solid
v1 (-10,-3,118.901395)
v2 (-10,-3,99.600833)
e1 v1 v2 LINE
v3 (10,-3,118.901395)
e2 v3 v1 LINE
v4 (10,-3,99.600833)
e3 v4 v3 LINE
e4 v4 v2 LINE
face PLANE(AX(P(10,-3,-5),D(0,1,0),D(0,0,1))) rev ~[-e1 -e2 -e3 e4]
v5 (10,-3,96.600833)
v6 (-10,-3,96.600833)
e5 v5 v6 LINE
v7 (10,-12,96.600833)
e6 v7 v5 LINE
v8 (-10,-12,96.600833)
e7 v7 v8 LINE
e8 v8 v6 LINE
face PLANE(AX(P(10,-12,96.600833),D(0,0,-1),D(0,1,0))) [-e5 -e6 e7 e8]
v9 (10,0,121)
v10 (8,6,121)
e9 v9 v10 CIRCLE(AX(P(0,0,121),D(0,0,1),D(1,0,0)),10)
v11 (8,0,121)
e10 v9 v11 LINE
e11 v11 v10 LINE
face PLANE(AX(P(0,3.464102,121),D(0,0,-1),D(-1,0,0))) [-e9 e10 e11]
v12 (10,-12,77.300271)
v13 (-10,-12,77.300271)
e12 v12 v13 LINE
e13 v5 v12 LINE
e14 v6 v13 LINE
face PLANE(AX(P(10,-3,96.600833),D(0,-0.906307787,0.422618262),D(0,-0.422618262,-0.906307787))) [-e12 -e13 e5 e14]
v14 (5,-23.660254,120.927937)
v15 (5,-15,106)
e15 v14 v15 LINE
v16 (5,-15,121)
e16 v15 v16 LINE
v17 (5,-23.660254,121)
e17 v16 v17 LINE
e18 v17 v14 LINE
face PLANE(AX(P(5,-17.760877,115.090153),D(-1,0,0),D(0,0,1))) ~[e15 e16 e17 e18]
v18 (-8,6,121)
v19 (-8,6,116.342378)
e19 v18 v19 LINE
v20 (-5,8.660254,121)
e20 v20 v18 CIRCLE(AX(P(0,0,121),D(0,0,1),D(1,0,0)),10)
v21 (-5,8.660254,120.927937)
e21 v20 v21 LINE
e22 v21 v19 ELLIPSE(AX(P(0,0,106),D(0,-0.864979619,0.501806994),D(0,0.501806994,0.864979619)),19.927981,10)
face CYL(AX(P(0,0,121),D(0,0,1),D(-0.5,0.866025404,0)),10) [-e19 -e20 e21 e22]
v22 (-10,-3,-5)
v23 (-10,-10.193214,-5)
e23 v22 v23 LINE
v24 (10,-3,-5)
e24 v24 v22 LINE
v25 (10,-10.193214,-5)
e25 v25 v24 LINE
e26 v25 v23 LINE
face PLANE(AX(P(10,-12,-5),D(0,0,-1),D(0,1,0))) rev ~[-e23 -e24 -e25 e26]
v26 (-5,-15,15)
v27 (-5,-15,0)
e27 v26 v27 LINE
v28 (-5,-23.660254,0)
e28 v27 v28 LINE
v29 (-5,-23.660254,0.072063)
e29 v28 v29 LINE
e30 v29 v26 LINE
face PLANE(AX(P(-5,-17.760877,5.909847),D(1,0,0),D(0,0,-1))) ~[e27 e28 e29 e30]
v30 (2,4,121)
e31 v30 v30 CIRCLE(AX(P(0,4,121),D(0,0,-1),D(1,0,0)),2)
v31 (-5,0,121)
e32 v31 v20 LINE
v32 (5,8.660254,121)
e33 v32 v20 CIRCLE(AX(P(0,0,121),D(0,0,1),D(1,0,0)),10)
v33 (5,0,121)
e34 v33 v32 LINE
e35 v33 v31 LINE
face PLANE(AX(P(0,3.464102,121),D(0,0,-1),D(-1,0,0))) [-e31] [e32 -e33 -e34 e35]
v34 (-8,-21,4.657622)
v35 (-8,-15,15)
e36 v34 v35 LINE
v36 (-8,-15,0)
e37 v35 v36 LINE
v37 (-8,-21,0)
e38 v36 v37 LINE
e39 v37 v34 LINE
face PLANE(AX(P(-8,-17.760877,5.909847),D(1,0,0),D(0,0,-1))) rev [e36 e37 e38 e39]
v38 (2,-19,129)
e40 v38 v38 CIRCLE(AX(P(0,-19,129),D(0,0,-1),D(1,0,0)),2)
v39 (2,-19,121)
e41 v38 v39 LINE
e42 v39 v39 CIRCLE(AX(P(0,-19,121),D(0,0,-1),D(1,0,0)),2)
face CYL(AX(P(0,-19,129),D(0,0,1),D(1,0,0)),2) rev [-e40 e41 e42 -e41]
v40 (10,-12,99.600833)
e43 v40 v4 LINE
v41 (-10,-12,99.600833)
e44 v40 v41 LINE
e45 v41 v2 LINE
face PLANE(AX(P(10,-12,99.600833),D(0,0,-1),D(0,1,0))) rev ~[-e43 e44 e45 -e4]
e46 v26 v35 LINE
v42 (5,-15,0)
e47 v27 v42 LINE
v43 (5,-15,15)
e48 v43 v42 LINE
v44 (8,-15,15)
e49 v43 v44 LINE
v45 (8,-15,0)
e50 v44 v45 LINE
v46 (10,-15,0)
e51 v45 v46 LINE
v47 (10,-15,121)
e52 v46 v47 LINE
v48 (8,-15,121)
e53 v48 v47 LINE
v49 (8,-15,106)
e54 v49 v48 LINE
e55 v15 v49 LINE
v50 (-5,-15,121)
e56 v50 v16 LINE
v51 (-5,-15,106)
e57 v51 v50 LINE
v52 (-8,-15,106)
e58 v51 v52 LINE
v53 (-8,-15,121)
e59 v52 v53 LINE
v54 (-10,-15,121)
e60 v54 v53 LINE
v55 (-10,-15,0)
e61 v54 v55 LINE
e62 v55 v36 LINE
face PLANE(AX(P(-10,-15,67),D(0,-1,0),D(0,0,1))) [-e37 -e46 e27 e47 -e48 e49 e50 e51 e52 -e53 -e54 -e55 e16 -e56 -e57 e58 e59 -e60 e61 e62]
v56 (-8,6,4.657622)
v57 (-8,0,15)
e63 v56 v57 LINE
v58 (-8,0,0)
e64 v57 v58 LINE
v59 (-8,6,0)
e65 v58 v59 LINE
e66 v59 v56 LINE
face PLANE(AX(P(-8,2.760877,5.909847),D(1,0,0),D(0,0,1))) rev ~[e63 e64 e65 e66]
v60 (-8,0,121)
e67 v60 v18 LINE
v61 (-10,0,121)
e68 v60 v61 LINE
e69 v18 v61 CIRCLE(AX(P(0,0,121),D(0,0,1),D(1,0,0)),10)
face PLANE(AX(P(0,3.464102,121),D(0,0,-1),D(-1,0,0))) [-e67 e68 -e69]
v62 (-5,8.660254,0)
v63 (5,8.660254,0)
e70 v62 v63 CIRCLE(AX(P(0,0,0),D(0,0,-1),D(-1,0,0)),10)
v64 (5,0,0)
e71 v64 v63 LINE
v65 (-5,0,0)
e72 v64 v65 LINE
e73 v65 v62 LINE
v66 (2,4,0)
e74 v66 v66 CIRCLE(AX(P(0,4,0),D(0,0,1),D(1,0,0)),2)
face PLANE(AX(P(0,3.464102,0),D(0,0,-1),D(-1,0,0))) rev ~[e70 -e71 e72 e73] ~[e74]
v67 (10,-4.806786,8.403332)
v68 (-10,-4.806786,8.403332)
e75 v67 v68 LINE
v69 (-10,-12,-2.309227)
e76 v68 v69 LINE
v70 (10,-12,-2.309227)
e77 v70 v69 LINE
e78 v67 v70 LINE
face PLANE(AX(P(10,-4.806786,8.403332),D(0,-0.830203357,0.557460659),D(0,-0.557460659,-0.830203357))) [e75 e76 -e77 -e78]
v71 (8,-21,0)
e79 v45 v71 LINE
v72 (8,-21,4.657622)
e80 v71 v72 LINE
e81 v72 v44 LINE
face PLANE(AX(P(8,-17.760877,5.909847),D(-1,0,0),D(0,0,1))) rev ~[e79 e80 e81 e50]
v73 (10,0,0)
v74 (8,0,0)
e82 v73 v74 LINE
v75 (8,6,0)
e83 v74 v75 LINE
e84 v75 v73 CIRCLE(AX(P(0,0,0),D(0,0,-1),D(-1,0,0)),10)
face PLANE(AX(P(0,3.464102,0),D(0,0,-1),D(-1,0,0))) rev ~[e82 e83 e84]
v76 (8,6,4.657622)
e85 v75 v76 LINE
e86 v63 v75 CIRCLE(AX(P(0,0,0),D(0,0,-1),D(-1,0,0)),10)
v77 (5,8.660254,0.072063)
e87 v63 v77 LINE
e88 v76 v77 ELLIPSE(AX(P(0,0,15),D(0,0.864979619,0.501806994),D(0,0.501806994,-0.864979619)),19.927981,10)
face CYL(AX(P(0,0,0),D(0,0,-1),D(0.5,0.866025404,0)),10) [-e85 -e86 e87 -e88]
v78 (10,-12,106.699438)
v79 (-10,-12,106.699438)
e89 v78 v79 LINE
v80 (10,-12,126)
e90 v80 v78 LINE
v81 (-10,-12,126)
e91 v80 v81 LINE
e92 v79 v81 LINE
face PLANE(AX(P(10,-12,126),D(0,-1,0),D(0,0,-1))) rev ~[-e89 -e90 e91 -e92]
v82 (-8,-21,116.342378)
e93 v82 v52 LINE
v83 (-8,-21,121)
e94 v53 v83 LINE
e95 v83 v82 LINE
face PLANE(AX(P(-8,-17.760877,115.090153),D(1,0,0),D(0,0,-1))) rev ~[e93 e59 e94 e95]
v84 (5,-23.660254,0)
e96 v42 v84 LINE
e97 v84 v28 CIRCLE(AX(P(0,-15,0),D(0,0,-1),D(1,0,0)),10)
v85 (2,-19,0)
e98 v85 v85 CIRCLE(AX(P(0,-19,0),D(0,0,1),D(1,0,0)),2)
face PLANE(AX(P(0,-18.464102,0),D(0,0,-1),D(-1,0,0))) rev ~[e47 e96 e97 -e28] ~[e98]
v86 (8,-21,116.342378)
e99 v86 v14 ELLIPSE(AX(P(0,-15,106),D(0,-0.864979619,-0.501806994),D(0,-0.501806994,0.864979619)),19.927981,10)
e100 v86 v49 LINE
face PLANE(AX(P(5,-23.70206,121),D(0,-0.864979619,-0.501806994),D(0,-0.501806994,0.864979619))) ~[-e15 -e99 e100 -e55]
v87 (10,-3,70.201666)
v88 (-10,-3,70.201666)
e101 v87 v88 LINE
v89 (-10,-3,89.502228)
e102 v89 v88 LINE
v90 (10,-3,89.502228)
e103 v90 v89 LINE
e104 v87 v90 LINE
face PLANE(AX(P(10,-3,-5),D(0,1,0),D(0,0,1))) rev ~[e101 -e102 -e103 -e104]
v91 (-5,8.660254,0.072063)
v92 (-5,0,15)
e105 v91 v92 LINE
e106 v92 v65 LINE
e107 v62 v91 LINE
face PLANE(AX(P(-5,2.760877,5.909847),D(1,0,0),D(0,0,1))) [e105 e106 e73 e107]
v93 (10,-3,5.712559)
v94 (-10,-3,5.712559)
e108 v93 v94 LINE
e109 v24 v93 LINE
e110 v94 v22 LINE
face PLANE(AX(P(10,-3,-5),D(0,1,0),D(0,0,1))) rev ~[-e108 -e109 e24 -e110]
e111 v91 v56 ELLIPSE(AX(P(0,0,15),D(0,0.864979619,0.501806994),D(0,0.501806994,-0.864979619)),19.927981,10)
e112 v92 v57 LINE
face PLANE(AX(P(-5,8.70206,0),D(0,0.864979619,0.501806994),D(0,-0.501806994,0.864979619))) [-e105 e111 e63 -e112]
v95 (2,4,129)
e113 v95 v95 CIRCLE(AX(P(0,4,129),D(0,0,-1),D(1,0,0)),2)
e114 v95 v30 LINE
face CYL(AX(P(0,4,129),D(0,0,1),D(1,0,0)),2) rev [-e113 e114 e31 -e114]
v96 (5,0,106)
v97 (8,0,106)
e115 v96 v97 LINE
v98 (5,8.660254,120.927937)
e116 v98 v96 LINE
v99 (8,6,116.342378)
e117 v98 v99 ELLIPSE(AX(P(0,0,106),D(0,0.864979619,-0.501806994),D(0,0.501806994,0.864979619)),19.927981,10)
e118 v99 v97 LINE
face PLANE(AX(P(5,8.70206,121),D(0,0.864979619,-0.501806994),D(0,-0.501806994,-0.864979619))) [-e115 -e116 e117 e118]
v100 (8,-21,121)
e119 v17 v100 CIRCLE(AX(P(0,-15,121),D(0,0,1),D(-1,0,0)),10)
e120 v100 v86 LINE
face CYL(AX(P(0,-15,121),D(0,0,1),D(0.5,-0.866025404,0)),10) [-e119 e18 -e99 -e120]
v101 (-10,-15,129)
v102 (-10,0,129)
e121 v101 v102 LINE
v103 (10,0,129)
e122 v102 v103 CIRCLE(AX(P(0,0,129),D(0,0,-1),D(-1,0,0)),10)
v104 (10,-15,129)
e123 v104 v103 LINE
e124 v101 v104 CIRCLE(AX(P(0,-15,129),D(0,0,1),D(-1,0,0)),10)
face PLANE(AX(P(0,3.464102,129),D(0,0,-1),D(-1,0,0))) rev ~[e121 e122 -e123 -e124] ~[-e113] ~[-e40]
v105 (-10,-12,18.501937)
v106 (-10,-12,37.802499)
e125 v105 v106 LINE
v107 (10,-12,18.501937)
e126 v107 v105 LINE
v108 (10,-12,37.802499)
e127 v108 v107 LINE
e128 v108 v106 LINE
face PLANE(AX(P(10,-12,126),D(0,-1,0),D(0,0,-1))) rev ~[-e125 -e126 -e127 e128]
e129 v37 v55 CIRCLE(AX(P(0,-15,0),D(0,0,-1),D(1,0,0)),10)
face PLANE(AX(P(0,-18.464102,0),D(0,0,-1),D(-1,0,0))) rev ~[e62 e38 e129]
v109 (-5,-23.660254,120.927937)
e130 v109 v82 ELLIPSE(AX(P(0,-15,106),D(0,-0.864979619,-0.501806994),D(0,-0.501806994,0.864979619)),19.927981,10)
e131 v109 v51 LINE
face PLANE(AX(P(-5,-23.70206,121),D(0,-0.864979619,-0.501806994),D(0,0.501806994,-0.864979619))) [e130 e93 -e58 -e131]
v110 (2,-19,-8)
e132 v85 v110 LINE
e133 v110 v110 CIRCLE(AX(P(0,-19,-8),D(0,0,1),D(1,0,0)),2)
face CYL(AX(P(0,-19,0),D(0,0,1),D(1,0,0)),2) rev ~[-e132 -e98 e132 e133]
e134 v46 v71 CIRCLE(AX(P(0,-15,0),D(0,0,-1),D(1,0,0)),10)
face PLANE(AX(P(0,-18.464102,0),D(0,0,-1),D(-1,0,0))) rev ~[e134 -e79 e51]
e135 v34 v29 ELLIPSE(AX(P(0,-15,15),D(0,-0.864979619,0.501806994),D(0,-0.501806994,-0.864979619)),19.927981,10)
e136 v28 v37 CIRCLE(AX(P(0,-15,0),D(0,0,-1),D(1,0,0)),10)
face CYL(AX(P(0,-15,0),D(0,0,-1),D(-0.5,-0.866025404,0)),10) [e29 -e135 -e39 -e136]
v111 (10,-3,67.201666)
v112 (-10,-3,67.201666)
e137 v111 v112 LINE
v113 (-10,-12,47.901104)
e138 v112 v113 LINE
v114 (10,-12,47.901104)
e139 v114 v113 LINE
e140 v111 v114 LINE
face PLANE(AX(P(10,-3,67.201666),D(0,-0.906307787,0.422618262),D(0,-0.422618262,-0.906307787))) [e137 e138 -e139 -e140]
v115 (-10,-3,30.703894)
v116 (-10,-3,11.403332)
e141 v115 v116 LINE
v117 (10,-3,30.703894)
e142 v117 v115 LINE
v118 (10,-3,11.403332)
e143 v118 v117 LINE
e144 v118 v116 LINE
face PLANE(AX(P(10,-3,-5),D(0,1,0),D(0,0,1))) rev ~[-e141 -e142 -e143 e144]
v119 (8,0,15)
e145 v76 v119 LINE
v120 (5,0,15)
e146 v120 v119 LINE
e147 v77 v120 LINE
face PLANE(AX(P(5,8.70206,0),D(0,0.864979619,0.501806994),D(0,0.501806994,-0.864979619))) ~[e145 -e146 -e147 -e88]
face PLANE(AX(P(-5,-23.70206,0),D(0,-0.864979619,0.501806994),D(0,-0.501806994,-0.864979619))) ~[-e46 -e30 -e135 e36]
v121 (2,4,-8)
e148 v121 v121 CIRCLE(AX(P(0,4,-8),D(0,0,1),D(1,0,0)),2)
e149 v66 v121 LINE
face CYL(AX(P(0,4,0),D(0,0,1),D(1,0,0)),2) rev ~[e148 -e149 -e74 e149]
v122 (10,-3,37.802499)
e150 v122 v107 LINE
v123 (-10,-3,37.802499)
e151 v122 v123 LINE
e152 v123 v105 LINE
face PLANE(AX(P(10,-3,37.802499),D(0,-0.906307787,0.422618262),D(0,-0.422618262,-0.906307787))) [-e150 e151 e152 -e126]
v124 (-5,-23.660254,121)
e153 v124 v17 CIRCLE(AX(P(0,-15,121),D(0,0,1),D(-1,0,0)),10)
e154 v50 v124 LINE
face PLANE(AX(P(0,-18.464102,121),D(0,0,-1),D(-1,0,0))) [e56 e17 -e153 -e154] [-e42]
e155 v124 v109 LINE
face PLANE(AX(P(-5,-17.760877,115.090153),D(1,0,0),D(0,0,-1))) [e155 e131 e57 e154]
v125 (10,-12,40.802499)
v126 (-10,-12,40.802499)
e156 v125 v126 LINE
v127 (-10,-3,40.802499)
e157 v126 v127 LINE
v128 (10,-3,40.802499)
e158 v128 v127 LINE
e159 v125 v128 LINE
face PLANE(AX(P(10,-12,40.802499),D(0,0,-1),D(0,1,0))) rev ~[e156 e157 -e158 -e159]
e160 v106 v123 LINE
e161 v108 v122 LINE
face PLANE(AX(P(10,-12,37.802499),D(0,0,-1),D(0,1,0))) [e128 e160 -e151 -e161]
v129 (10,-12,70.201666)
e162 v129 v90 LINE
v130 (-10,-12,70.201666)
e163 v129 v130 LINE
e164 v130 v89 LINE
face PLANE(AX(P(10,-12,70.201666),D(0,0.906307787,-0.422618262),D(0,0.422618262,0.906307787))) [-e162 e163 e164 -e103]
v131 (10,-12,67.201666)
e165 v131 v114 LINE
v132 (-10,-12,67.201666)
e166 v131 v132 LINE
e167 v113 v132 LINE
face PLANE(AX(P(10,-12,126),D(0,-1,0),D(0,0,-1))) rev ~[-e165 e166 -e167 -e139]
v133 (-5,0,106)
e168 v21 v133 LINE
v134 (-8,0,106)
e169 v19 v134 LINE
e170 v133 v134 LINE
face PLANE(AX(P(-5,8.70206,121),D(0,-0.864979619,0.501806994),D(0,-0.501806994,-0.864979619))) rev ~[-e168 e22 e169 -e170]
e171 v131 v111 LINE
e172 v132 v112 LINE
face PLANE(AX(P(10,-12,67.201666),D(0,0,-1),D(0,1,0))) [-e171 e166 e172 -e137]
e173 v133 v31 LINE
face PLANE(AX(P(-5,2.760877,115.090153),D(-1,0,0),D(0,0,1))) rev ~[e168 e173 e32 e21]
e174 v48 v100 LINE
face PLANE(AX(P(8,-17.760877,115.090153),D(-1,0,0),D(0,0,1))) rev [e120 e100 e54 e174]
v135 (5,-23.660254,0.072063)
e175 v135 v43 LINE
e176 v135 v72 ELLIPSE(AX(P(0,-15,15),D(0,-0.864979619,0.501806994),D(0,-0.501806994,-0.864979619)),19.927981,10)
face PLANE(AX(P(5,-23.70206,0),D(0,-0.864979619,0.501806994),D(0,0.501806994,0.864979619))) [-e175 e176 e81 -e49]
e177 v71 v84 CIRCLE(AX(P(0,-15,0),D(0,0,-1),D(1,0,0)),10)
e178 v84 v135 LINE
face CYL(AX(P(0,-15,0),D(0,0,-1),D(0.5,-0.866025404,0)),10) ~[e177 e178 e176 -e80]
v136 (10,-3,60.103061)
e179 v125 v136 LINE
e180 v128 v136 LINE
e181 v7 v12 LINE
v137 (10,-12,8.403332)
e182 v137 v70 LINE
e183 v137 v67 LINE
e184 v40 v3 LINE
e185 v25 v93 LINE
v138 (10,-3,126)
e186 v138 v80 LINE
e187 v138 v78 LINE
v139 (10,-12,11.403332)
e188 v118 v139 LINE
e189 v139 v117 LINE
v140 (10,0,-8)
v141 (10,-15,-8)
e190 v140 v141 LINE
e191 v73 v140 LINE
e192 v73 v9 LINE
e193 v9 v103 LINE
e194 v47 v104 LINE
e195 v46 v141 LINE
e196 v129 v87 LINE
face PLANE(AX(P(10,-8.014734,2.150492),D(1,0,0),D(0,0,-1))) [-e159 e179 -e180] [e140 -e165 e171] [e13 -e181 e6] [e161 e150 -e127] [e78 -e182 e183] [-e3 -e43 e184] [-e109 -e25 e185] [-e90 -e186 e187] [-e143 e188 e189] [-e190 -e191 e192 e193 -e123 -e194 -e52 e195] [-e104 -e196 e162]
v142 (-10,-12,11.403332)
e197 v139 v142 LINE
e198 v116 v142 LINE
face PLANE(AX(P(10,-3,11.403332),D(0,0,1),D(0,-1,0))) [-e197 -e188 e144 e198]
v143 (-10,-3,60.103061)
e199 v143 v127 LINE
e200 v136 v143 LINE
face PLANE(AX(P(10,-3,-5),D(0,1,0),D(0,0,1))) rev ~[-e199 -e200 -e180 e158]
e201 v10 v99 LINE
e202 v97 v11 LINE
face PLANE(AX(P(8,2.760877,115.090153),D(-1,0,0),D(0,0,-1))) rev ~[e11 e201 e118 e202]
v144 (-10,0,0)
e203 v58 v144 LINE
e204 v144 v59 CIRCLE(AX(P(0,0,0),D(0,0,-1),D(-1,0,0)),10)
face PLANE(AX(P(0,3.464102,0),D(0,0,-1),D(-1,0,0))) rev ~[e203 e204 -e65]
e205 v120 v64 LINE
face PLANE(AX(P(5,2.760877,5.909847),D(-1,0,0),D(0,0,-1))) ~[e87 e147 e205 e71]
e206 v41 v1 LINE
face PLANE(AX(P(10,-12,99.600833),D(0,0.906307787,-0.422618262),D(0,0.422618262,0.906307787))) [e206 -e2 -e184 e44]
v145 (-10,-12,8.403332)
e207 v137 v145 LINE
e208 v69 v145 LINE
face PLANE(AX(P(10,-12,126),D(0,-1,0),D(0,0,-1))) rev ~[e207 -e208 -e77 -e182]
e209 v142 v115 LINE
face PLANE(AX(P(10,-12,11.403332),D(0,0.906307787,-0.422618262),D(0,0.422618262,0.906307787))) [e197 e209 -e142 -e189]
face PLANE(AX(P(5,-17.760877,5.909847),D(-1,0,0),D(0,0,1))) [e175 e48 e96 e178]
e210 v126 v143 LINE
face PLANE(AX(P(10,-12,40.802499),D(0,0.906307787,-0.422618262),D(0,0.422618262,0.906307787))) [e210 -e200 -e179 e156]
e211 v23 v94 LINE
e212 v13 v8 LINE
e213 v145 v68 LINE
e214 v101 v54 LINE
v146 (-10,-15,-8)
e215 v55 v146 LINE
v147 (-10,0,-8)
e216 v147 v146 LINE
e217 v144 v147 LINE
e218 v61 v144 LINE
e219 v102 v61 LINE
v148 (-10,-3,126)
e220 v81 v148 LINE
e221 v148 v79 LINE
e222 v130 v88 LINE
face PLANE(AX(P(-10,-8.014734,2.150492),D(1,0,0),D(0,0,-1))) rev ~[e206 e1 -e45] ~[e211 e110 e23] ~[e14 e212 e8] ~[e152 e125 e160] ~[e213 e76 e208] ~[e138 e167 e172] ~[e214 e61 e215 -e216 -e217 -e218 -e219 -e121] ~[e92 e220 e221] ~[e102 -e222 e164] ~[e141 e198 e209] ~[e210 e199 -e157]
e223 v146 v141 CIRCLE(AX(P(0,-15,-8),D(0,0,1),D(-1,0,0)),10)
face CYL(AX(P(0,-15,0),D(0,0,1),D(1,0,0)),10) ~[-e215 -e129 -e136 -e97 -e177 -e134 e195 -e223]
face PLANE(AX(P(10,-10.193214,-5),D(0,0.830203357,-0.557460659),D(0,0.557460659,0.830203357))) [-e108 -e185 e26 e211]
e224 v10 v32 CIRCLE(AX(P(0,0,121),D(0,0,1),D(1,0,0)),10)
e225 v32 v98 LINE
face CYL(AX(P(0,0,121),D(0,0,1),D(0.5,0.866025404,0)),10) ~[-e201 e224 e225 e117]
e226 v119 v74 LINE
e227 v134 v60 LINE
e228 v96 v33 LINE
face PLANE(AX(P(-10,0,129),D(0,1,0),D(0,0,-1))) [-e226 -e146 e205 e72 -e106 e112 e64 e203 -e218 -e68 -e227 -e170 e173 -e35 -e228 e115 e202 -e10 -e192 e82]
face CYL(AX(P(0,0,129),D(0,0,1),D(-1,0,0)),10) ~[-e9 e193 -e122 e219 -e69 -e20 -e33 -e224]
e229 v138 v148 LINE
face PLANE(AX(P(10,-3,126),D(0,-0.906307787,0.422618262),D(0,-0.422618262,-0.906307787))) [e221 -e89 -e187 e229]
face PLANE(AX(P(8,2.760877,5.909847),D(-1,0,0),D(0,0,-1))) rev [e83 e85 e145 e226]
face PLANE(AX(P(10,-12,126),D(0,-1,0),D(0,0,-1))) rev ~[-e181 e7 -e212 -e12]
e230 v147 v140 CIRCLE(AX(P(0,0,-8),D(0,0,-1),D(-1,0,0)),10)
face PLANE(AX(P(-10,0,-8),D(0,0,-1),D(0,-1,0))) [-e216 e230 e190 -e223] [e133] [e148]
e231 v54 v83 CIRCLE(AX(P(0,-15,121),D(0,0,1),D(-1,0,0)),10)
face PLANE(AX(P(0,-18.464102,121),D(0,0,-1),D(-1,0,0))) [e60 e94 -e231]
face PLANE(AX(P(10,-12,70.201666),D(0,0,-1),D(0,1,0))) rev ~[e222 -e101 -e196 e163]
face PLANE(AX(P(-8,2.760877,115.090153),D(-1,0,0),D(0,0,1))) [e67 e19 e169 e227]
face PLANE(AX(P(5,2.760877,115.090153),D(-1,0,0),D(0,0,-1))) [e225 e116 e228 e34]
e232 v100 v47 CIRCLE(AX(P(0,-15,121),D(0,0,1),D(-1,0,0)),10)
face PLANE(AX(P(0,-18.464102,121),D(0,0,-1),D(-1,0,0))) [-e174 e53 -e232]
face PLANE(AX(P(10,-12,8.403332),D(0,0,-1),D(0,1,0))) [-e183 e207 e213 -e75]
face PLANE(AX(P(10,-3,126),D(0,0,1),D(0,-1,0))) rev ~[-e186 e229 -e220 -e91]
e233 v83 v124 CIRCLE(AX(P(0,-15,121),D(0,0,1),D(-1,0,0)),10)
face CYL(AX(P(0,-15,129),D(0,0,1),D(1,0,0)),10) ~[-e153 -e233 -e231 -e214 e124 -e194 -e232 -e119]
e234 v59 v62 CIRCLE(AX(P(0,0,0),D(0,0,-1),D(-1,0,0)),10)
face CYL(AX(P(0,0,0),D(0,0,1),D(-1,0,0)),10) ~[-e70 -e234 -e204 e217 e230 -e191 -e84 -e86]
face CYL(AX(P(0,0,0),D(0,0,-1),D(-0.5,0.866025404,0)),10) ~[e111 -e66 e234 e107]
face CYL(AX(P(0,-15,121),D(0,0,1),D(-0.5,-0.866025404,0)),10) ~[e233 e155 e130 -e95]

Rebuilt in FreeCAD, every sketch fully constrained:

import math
import FreeCAD as App
import Part
import Sketcher
Q = App.Units.Quantity


def add_polygon(sketch, points):
    """Adds a closed chain of lines whose ends are joined by coincident constraints."""
    first, n = sketch.GeometryCount, len(points)
    for a, b in zip(points, points[1:] + points[:1]):
        sketch.addGeometry(Part.LineSegment(App.Vector(*a, 0), App.Vector(*b, 0)), False)
    for i in range(n):
        sketch.addConstraint(Sketcher.Constraint("Coincident", first + i, 2, first + (i + 1) % n, 1))

doc = App.newDocument("Part")
body = doc.addObject("PartDesign::Body", "Body")

sketch1 = body.newObject("Sketcher::SketchObject", "Sketch")
sketch1.AttachmentSupport = (doc.getObject("XY_Plane"), [""])
sketch1.MapMode = "FlatFace"
sketch1.addGeometry([
    Part.LineSegment(App.Vector(10, -15, 0), App.Vector(-10, -15, 0)),
    Part.ArcOfCircle(Part.Circle(App.Vector(0, -15, 0), App.Vector(0, 0, 1), 10), math.radians(180), math.radians(360)),
    Part.Circle(App.Vector(0, -19, 0), App.Vector(0, 0, 1), 2),
], False)
sketch1.addConstraint([
    Sketcher.Constraint("Coincident", 0, 1, 1, 2),
    Sketcher.Constraint("Coincident", 1, 1, 0, 2),
    Sketcher.Constraint("Horizontal", 0),
    Sketcher.Constraint("PointOnObject", 1, 3, -2),
    Sketcher.Constraint("PointOnObject", 2, 3, -2),
    Sketcher.Constraint("Horizontal", 1, 3, 0, 1),
    Sketcher.Constraint("Diameter", 2, 4.0),
    Sketcher.Constraint("Radius", 1, 10.0),
    Sketcher.Constraint("DistanceY", 1, 3, -1, 1, 15.0),
    Sketcher.Constraint("DistanceY", 2, 3, -1, 1, 19.0),
])
pad1 = body.newObject("PartDesign::Pad", "Pad")
pad1.Profile = sketch1
pad1.Length = 8
pad1.Reversed = True
body2 = doc.addObject("PartDesign::Body", "Body001")

sketch2 = body2.newObject("Sketcher::SketchObject", "Sketch001")
sketch2.AttachmentSupport = (doc.getObject("XY_Plane001"), [""])
sketch2.MapMode = "FlatFace"
sketch2.addGeometry([
    Part.LineSegment(App.Vector(-10, 0, 0), App.Vector(10, 0, 0)),
    Part.ArcOfCircle(Part.Circle(App.Vector(0, 0, 0), App.Vector(0, 0, 1), 10), math.radians(0), math.radians(180)),
    Part.Circle(App.Vector(0, 4, 0), App.Vector(0, 0, 1), 2),
], False)
sketch2.addConstraint([
    Sketcher.Constraint("Coincident", 0, 1, 1, 2),
    Sketcher.Constraint("Coincident", 1, 1, 0, 2),
    Sketcher.Constraint("Horizontal", 0),
    Sketcher.Constraint("Coincident", 1, 3, -1, 1),
    Sketcher.Constraint("PointOnObject", 2, 3, -2),
    Sketcher.Constraint("PointOnObject", 0, 1, -1),
    Sketcher.Constraint("Diameter", 2, 4.0),
    Sketcher.Constraint("Radius", 1, 10.0),
    Sketcher.Constraint("DistanceY", -1, 1, 2, 3, 4.0),
])
pad2 = body2.newObject("PartDesign::Pad", "Pad001")
pad2.Profile = sketch2
pad2.Length = 8
pad2.Reversed = True
body.AllowCompound = True
doc.recompute()

boolean = body.newObject("PartDesign::Boolean", "Boolean")
boolean.Type = "Fuse"
boolean.addObjects([body2])

sketch3 = body.newObject("Sketcher::SketchObject", "Sketch002")
sketch3.AttachmentSupport = (doc.getObject("YZ_Plane"), [""])
sketch3.MapMode = "FlatFace"
sketch3.AttachmentOffset = App.Placement(App.Vector(0, 0, -10), App.Rotation())
add_polygon(sketch3, [(-15, 67), (-8, 67), (-8, 54), (0, 54), (0, -8), (-15, -8)])
sketch3.addConstraint([
    Sketcher.Constraint("Horizontal", 0),
    Sketcher.Constraint("Vertical", 1),
    Sketcher.Constraint("Horizontal", 2),
    Sketcher.Constraint("Vertical", 3),
    Sketcher.Constraint("Horizontal", 4),
    Sketcher.Constraint("Vertical", 5),
    Sketcher.Constraint("PointOnObject", 2, 2, -2),
    Sketcher.Constraint("Equal", 0, 2),
    Sketcher.Constraint("DistanceX", 4, 2, 4, 1, 15.0),
    Sketcher.Constraint("DistanceY", 1, 2, 1, 1, 13.0),
    Sketcher.Constraint("DistanceY", 3, 2, 3, 1, 62.0),
    Sketcher.Constraint("DistanceY", -1, 1, 0, 2, 67.0),
])
pad3 = body.newObject("PartDesign::Pad", "Pad002")
pad3.Profile = sketch3
pad3.Length = 20

sketch4 = body.newObject("Sketcher::SketchObject", "Sketch003")
sketch4.AttachmentSupport = (doc.getObject("YZ_Plane"), [""])
sketch4.MapMode = "FlatFace"
sketch4.AttachmentOffset = App.Placement(App.Vector(0, 0, -10), App.Rotation())
add_polygon(sketch4, [(0, 54), (-8, 54), (-8, 67), (-15, 67), (-15, 129), (0, 129)])
sketch4.addConstraint([
    Sketcher.Constraint("Horizontal", 0),
    Sketcher.Constraint("Vertical", 1),
    Sketcher.Constraint("Horizontal", 2),
    Sketcher.Constraint("Vertical", 3),
    Sketcher.Constraint("Horizontal", 4),
    Sketcher.Constraint("Vertical", 5),
    Sketcher.Constraint("PointOnObject", 4, 2, -2),
    Sketcher.Constraint("Equal", 0, 2),
    Sketcher.Constraint("DistanceX", 4, 1, 4, 2, 15.0),
    Sketcher.Constraint("DistanceY", 1, 1, 1, 2, 13.0),
    Sketcher.Constraint("DistanceY", 3, 1, 3, 2, 62.0),
    Sketcher.Constraint("DistanceY", -1, 1, 0, 2, 54.0),
])
pad4 = body.newObject("PartDesign::Pad", "Pad003")
pad4.Profile = sketch4
pad4.Length = 20

sketch5 = body.newObject("Sketcher::SketchObject", "Sketch004")
sketch5.AttachmentSupport = (doc.getObject("XY_Plane"), [""])
sketch5.MapMode = "FlatFace"
sketch5.AttachmentOffset = App.Placement(App.Vector(0, 0, 129), App.Rotation())
sketch5.addGeometry([
    Part.LineSegment(App.Vector(10, 0, 0), App.Vector(-10, 0, 0)),
    Part.ArcOfCircle(Part.Circle(App.Vector(0, 0, 0), App.Vector(0, 0, 1), 10), math.radians(0), math.radians(180)),
    Part.Circle(App.Vector(0, 4, 0), App.Vector(0, 0, 1), 2),
    Part.LineSegment(App.Vector(-10, -15, 0), App.Vector(10, -15, 0)),
    Part.ArcOfCircle(Part.Circle(App.Vector(0, -15, 0), App.Vector(0, 0, 1), 10), math.radians(180), math.radians(360)),
    Part.Circle(App.Vector(0, -19, 0), App.Vector(0, 0, 1), 2),
], False)
sketch5.addConstraint([
    Sketcher.Constraint("Coincident", 0, 1, 1, 1),
    Sketcher.Constraint("Coincident", 1, 2, 0, 2),
    Sketcher.Constraint("Coincident", 3, 1, 4, 1),
    Sketcher.Constraint("Coincident", 4, 2, 3, 2),
    Sketcher.Constraint("Horizontal", 0),
    Sketcher.Constraint("Horizontal", 3),
    Sketcher.Constraint("Coincident", 1, 3, -1, 1),
    Sketcher.Constraint("Equal", 1, 4),
    Sketcher.Constraint("Equal", 2, 5),
    Sketcher.Constraint("PointOnObject", 2, 3, -2),
    Sketcher.Constraint("PointOnObject", 4, 3, -2),
    Sketcher.Constraint("PointOnObject", 5, 3, -2),
    Sketcher.Constraint("PointOnObject", 0, 1, -1),
    Sketcher.Constraint("Horizontal", 4, 3, 3, 1),
    Sketcher.Constraint("Diameter", 2, 4.0),
    Sketcher.Constraint("Radius", 1, 10.0),
    Sketcher.Constraint("DistanceY", -1, 1, 2, 3, 4.0),
    Sketcher.Constraint("DistanceY", 4, 3, -1, 1, 15.0),
    Sketcher.Constraint("DistanceY", 5, 3, -1, 1, 19.0),
])
pad5 = body.newObject("PartDesign::Pad", "Pad004")
pad5.Profile = sketch5
pad5.Length = 8
pad5.Reversed = True

sketch6 = body.newObject("Sketcher::SketchObject", "Sketch005")
sketch6.AttachmentSupport = (doc.getObject("YZ_Plane"), [""])
sketch6.MapMode = "FlatFace"
sketch6.AttachmentOffset = App.Placement(App.Vector(0, 0, 10), App.Rotation())
add_polygon(sketch6, [(-3, 126), (-12, 126), (-12, -5), (-3, -5)])
sketch6.addConstraint([
    Sketcher.Constraint("Horizontal", 0),
    Sketcher.Constraint("Vertical", 1),
    Sketcher.Constraint("Horizontal", 2),
    Sketcher.Constraint("Vertical", 3),
    Sketcher.Constraint("DistanceX", 0, 2, 0, 1, 9.0),
    Sketcher.Constraint("DistanceY", 1, 2, 1, 1, 131.0),
    Sketcher.Constraint("DistanceX", 0, 2, -1, 1, 12.0),
    Sketcher.Constraint("DistanceY", -1, 1, 0, 2, 126.0),
])
pocket1 = body.newObject("PartDesign::Pocket", "Pocket")
pocket1.Profile = sketch6
pocket1.Type = "ThroughAll"

sketch7 = body.newObject("Sketcher::SketchObject", "Sketch006")
sketch7.AttachmentSupport = (doc.getObject("YZ_Plane"), [""])
sketch7.MapMode = "FlatFace"
sketch7.AttachmentOffset = App.Placement(App.Vector(0, 0, 10), App.Rotation())
add_polygon(sketch7, [(-4.8, 8.4), (-12, -2.3), (-12, -5), (-10.2, -5), (-3, 5.7), (-3, 11.4), (-12, 11.4), (-12, 8.4)])
add_polygon(sketch7, [(-3, 30.7), (-3, 37.8), (-12, 18.5), (-12, 11.4)])
add_polygon(sketch7, [(-3, 40.8), (-12, 40.8), (-12, 37.8), (-3, 37.8)])
add_polygon(sketch7, [(-3, 60.1), (-3, 67.2), (-12, 47.9), (-12, 40.8)])
add_polygon(sketch7, [(-3, 70.2), (-12, 70.2), (-12, 67.2), (-3, 67.2)])
add_polygon(sketch7, [(-3, 89.5), (-3, 96.6), (-12, 77.3), (-12, 70.2)])
add_polygon(sketch7, [(-3, 99.6), (-12, 99.6), (-12, 96.6), (-3, 96.6)])
add_polygon(sketch7, [(-3, 118.9), (-3, 126), (-12, 106.7), (-12, 99.6)])
sketch7.addConstraint([
    Sketcher.Constraint("Vertical", 1),
    Sketcher.Constraint("Horizontal", 2),
    Sketcher.Constraint("Vertical", 4),
    Sketcher.Constraint("Horizontal", 5),
    Sketcher.Constraint("Vertical", 6),
    Sketcher.Constraint("Horizontal", 7),
    Sketcher.Constraint("Vertical", 8),
    Sketcher.Constraint("Vertical", 10),
    Sketcher.Constraint("Horizontal", 12),
    Sketcher.Constraint("Vertical", 13),
    Sketcher.Constraint("Horizontal", 14),
    Sketcher.Constraint("Vertical", 15),
    Sketcher.Constraint("Vertical", 16),
    Sketcher.Constraint("Vertical", 18),
    Sketcher.Constraint("Horizontal", 20),
    Sketcher.Constraint("Vertical", 21),
    Sketcher.Constraint("Horizontal", 22),
    Sketcher.Constraint("Vertical", 23),
    Sketcher.Constraint("Vertical", 24),
    Sketcher.Constraint("Vertical", 26),
    Sketcher.Constraint("Horizontal", 28),
    Sketcher.Constraint("Vertical", 29),
    Sketcher.Constraint("Horizontal", 30),
    Sketcher.Constraint("Vertical", 31),
    Sketcher.Constraint("Vertical", 32),
    Sketcher.Constraint("Vertical", 34),
    Sketcher.Constraint("Coincident", 10, 2, 5, 2),
    Sketcher.Constraint("Coincident", 14, 2, 8, 2),
    Sketcher.Constraint("Coincident", 18, 2, 12, 2),
    Sketcher.Constraint("Coincident", 22, 2, 16, 2),
    Sketcher.Constraint("Coincident", 26, 2, 20, 2),
    Sketcher.Constraint("Coincident", 30, 2, 24, 2),
    Sketcher.Constraint("Coincident", 34, 2, 28, 2),
    Sketcher.Constraint("Parallel", 0, 3),
    Sketcher.Constraint("Parallel", 9, 11),
    Sketcher.Constraint("Parallel", 11, 17),
    Sketcher.Constraint("Parallel", 17, 19),
    Sketcher.Constraint("Parallel", 19, 25),
    Sketcher.Constraint("Parallel", 25, 27),
    Sketcher.Constraint("Parallel", 27, 33),
    Sketcher.Constraint("Parallel", 33, 35),
    Sketcher.Constraint("Vertical", 1, 2, 5, 2),
    Sketcher.Constraint("Vertical", 4, 2, 8, 2),
    Sketcher.Constraint("Vertical", 10, 2, 12, 2),
    Sketcher.Constraint("Vertical", 15, 2, 16, 2),
    Sketcher.Constraint("Vertical", 18, 2, 20, 2),
    Sketcher.Constraint("Vertical", 23, 2, 24, 2),
    Sketcher.Constraint("Vertical", 26, 2, 28, 2),
    Sketcher.Constraint("Vertical", 31, 2, 32, 2),
    Sketcher.Constraint("Equal", 6, 13),
    Sketcher.Constraint("Equal", 10, 16),
    Sketcher.Constraint("Equal", 15, 21),
    Sketcher.Constraint("Equal", 18, 24),
    Sketcher.Constraint("Equal", 23, 29),
    Sketcher.Constraint("Equal", 26, 32),
    Sketcher.Constraint("Equal", 0, 3),
    Sketcher.Constraint("DistanceX", 5, 2, 5, 1, 9.0),
    Sketcher.Constraint("DistanceY", 6, 2, 6, 1, 3.0),
    Sketcher.Constraint("Angle", 9, Q("-115 deg")),
    Sketcher.Constraint("DistanceX", 0, 2, -1, 1, 12.0),
    Sketcher.Constraint("DistanceY", 1, 2, -1, 1, 5.0),
    Sketcher.Constraint("DistanceY", -1, 1, 32, 2, 126.0),
    Sketcher.Constraint("DistanceY", -1, 1, 8, 2, 37.802499),
    Sketcher.Constraint("DistanceX", 2, 1, 2, 2, 1.806786),
    Sketcher.Constraint("DistanceY", 1, 2, 1, 1, 2.690773),
])
pad6 = body.newObject("PartDesign::Pad", "Pad005")
pad6.Profile = sketch7
pad6.Length = 20
pad6.Reversed = True

sketch8 = body.newObject("Sketcher::SketchObject", "Sketch007")
sketch8.AttachmentSupport = (doc.getObject("YZ_Plane"), [""])
sketch8.MapMode = "FlatFace"
sketch8.AttachmentOffset = App.Placement(App.Vector(0, 0, 5), App.Rotation())
add_polygon(sketch8, [(-24, 0), (-15, 0), (-15, 15)])
sketch8.addConstraint([
    Sketcher.Constraint("Horizontal", 0),
    Sketcher.Constraint("Vertical", 1),
    Sketcher.Constraint("PointOnObject", 0, 2, -1),
    Sketcher.Constraint("DistanceY", 1, 1, 1, 2, 15.0),
    Sketcher.Constraint("DistanceX", 0, 2, -1, 1, 15.0),
    Sketcher.Constraint("DistanceX", 0, 1, 0, 2, 8.70206),
])
pad7 = body.newObject("PartDesign::Pad", "Pad006")
pad7.Profile = sketch8
pad7.Length = 3

sketch9 = body.newObject("Sketcher::SketchObject", "Sketch008")
sketch9.AttachmentSupport = (doc.getObject("XY_Plane"), [""])
sketch9.MapMode = "FlatFace"
sketch9.addGeometry([
    Part.LineSegment(App.Vector(8, -21, 0), App.Vector(8, -23.702, 0)),
    Part.LineSegment(App.Vector(8, -23.702, 0), App.Vector(5, -23.702, 0)),
    Part.LineSegment(App.Vector(5, -23.702, 0), App.Vector(5, -23.66, 0)),
    Part.ArcOfCircle(Part.Circle(App.Vector(0, -15, 0), App.Vector(0, 0, 1), 10), math.radians(-60), math.radians(-37)),
], False)
sketch9.addConstraint([
    Sketcher.Constraint("Coincident", 0, 2, 1, 1),
    Sketcher.Constraint("Coincident", 1, 2, 2, 1),
    Sketcher.Constraint("Coincident", 2, 2, 3, 1),
    Sketcher.Constraint("Coincident", 3, 2, 0, 1),
    Sketcher.Constraint("Vertical", 0),
    Sketcher.Constraint("Horizontal", 1),
    Sketcher.Constraint("Vertical", 2),
    Sketcher.Constraint("PointOnObject", 3, 3, -2),
    Sketcher.Constraint("Radius", 3, 10.0),
    Sketcher.Constraint("DistanceX", 1, 2, 1, 1, 3.0),
    Sketcher.Constraint("DistanceY", 3, 3, -1, 1, 15.0),
    Sketcher.Constraint("DistanceX", -1, 1, 0, 2, 8.0),
    Sketcher.Constraint("DistanceY", 0, 2, 0, 1, 2.70206),
])
pocket2 = body.newObject("PartDesign::Pocket", "Pocket001")
pocket2.Profile = sketch9
pocket2.Type = "ThroughAll"
pocket2.Reversed = True
doc.recompute()

mirrored = body.newObject("PartDesign::Mirrored", "Mirrored")
mirrored.Originals = [pad7, pocket2]
mirrored.MirrorPlane = (doc.getObject("YZ_Plane"), [""])
body.Tip = mirrored
doc.recompute()

datumplane = body.newObject("PartDesign::Plane", "DatumPlane")
datumplane.AttachmentSupport = (doc.getObject("XY_Plane"), [""])
datumplane.MapMode = "FlatFace"
datumplane.AttachmentOffset = App.Placement(App.Vector(0, 0, 60.5), App.Rotation())
mirrored2 = body.newObject("PartDesign::Mirrored", "Mirrored001")
mirrored2.Originals = [pad7, pocket2]
mirrored2.MirrorPlane = (datumplane, [""])
body.Tip = mirrored2

sketch10 = body.newObject("Sketcher::SketchObject", "Sketch009")
sketch10.AttachmentSupport = (doc.getObject("YZ_Plane"), [""])
sketch10.MapMode = "FlatFace"
sketch10.AttachmentOffset = App.Placement(App.Vector(0, 0, -5), App.Rotation())
add_polygon(sketch10, [(-24, 121), (-15, 121), (-15, 106)])
sketch10.addConstraint([
    Sketcher.Constraint("Horizontal", 0),
    Sketcher.Constraint("Vertical", 1),
    Sketcher.Constraint("DistanceY", 1, 2, 1, 1, 15.0),
    Sketcher.Constraint("DistanceX", 0, 2, -1, 1, 15.0),
    Sketcher.Constraint("DistanceY", -1, 1, 0, 2, 121.0),
    Sketcher.Constraint("DistanceX", 0, 1, 0, 2, 8.70206),
])
pad8 = body.newObject("PartDesign::Pad", "Pad007")
pad8.Profile = sketch10
pad8.Length = 3
pad8.Reversed = True

sketch11 = body.newObject("Sketcher::SketchObject", "Sketch010")
sketch11.AttachmentSupport = (doc.getObject("XY_Plane"), [""])
sketch11.MapMode = "FlatFace"
sketch11.AttachmentOffset = App.Placement(App.Vector(0, 0, 121), App.Rotation())
sketch11.addGeometry([
    Part.LineSegment(App.Vector(-8, -21, 0), App.Vector(-8, -23.702, 0)),
    Part.LineSegment(App.Vector(-8, -23.702, 0), App.Vector(-5, -23.702, 0)),
    Part.LineSegment(App.Vector(-5, -23.702, 0), App.Vector(-5, -23.66, 0)),
    Part.ArcOfCircle(Part.Circle(App.Vector(0, -15, 0), App.Vector(0, 0, 1), 10), math.radians(-143), math.radians(-120)),
], False)
sketch11.addConstraint([
    Sketcher.Constraint("Coincident", 0, 2, 1, 1),
    Sketcher.Constraint("Coincident", 1, 2, 2, 1),
    Sketcher.Constraint("Coincident", 2, 2, 3, 2),
    Sketcher.Constraint("Coincident", 3, 1, 0, 1),
    Sketcher.Constraint("Vertical", 0),
    Sketcher.Constraint("Horizontal", 1),
    Sketcher.Constraint("Vertical", 2),
    Sketcher.Constraint("PointOnObject", 3, 3, -2),
    Sketcher.Constraint("Radius", 3, 10.0),
    Sketcher.Constraint("DistanceX", 1, 1, 1, 2, 3.0),
    Sketcher.Constraint("DistanceY", 3, 3, -1, 1, 15.0),
    Sketcher.Constraint("DistanceX", 0, 2, -1, 1, 8.0),
    Sketcher.Constraint("DistanceY", 0, 2, 0, 1, 2.70206),
])
pocket3 = body.newObject("PartDesign::Pocket", "Pocket002")
pocket3.Profile = sketch11
pocket3.Type = "ThroughAll"
doc.recompute()

datumplane2 = body.newObject("PartDesign::Plane", "DatumPlane001")
datumplane2.AttachmentSupport = (doc.getObject("XZ_Plane"), [""])
datumplane2.MapMode = "FlatFace"
datumplane2.AttachmentOffset = App.Placement(App.Vector(0, 0, 7.5), App.Rotation())
mirrored3 = body.newObject("PartDesign::Mirrored", "Mirrored002")
mirrored3.Originals = [pad7, pocket2]
mirrored3.MirrorPlane = (datumplane2, [""])
body.Tip = mirrored3

sketch12 = body.newObject("Sketcher::SketchObject", "Sketch011")
sketch12.AttachmentSupport = (doc.getObject("YZ_Plane"), [""])
sketch12.MapMode = "FlatFace"
sketch12.AttachmentOffset = App.Placement(App.Vector(0, 0, -5), App.Rotation())
add_polygon(sketch12, [(9, 0), (0, 0), (0, 15)])
sketch12.addConstraint([
    Sketcher.Constraint("Horizontal", 0),
    Sketcher.Constraint("Vertical", 1),
    Sketcher.Constraint("Coincident", 0, 2, -1, 1),
    Sketcher.Constraint("DistanceY", 1, 1, 1, 2, 15.0),
    Sketcher.Constraint("DistanceX", 0, 2, 0, 1, 8.70206),
])
pad9 = body.newObject("PartDesign::Pad", "Pad008")
pad9.Profile = sketch12
pad9.Length = 3
pad9.Reversed = True

sketch13 = body.newObject("Sketcher::SketchObject", "Sketch012")
sketch13.AttachmentSupport = (doc.getObject("XY_Plane"), [""])
sketch13.MapMode = "FlatFace"
sketch13.addGeometry([
    Part.LineSegment(App.Vector(-8, 6, 0), App.Vector(-8, 8.702, 0)),
    Part.LineSegment(App.Vector(-8, 8.702, 0), App.Vector(-5, 8.702, 0)),
    Part.LineSegment(App.Vector(-5, 8.702, 0), App.Vector(-5, 8.66, 0)),
    Part.ArcOfCircle(Part.Circle(App.Vector(0, 0, 0), App.Vector(0, 0, 1), 10), math.radians(120), math.radians(143)),
], False)
sketch13.addConstraint([
    Sketcher.Constraint("Coincident", 0, 2, 1, 1),
    Sketcher.Constraint("Coincident", 1, 2, 2, 1),
    Sketcher.Constraint("Coincident", 2, 2, 3, 1),
    Sketcher.Constraint("Coincident", 3, 2, 0, 1),
    Sketcher.Constraint("Vertical", 0),
    Sketcher.Constraint("Horizontal", 1),
    Sketcher.Constraint("Vertical", 2),
    Sketcher.Constraint("Coincident", 3, 3, -1, 1),
    Sketcher.Constraint("Radius", 3, 10.0),
    Sketcher.Constraint("DistanceX", 1, 1, 1, 2, 3.0),
    Sketcher.Constraint("DistanceX", 0, 2, -1, 1, 8.0),
    Sketcher.Constraint("DistanceY", 0, 1, 0, 2, 2.70206),
])
pocket4 = body.newObject("PartDesign::Pocket", "Pocket003")
pocket4.Profile = sketch13
pocket4.Type = "ThroughAll"
pocket4.Reversed = True

sketch14 = body.newObject("Sketcher::SketchObject", "Sketch013")
sketch14.AttachmentSupport = (doc.getObject("YZ_Plane"), [""])
sketch14.MapMode = "FlatFace"
sketch14.AttachmentOffset = App.Placement(App.Vector(0, 0, 5), App.Rotation())
add_polygon(sketch14, [(9, 121), (0, 121), (0, 106)])
sketch14.addConstraint([
    Sketcher.Constraint("Horizontal", 0),
    Sketcher.Constraint("Vertical", 1),
    Sketcher.Constraint("PointOnObject", 0, 2, -2),
    Sketcher.Constraint("DistanceY", 1, 2, 1, 1, 15.0),
    Sketcher.Constraint("DistanceY", -1, 1, 0, 2, 121.0),
    Sketcher.Constraint("DistanceX", 0, 2, 0, 1, 8.70206),
])
pad10 = body.newObject("PartDesign::Pad", "Pad009")
pad10.Profile = sketch14
pad10.Length = 3

sketch15 = body.newObject("Sketcher::SketchObject", "Sketch014")
sketch15.AttachmentSupport = (doc.getObject("XY_Plane"), [""])
sketch15.MapMode = "FlatFace"
sketch15.AttachmentOffset = App.Placement(App.Vector(0, 0, 121), App.Rotation())
sketch15.addGeometry([
    Part.LineSegment(App.Vector(8, 6, 0), App.Vector(8, 8.702, 0)),
    Part.LineSegment(App.Vector(8, 8.702, 0), App.Vector(5, 8.702, 0)),
    Part.LineSegment(App.Vector(5, 8.702, 0), App.Vector(5, 8.66, 0)),
    Part.ArcOfCircle(Part.Circle(App.Vector(0, 0, 0), App.Vector(0, 0, 1), 10), math.radians(37), math.radians(60)),
], False)
sketch15.addConstraint([
    Sketcher.Constraint("Coincident", 0, 2, 1, 1),
    Sketcher.Constraint("Coincident", 1, 2, 2, 1),
    Sketcher.Constraint("Coincident", 2, 2, 3, 2),
    Sketcher.Constraint("Coincident", 3, 1, 0, 1),
    Sketcher.Constraint("Vertical", 0),
    Sketcher.Constraint("Horizontal", 1),
    Sketcher.Constraint("Vertical", 2),
    Sketcher.Constraint("Coincident", 3, 3, -1, 1),
    Sketcher.Constraint("Radius", 3, 10.0),
    Sketcher.Constraint("DistanceX", 1, 2, 1, 1, 3.0),
    Sketcher.Constraint("DistanceX", -1, 1, 0, 2, 8.0),
    Sketcher.Constraint("DistanceY", 0, 1, 0, 2, 2.70206),
])
pocket5 = body.newObject("PartDesign::Pocket", "Pocket004")
pocket5.Profile = sketch15
pocket5.Type = "ThroughAll"

sketch16 = body.newObject("Sketcher::SketchObject", "Sketch015")
sketch16.AttachmentSupport = (doc.getObject("YZ_Plane"), [""])
sketch16.MapMode = "FlatFace"
sketch16.AttachmentOffset = App.Placement(App.Vector(0, 0, -5), App.Rotation())
add_polygon(sketch16, [(0, 121), (9, 121), (0, 106)])
sketch16.addConstraint([
    Sketcher.Constraint("Horizontal", 0),
    Sketcher.Constraint("Vertical", 2),
    Sketcher.Constraint("PointOnObject", 1, 2, -2),
    Sketcher.Constraint("DistanceY", 2, 1, 2, 2, 15.0),
    Sketcher.Constraint("DistanceY", -1, 1, 0, 2, 121.0),
    Sketcher.Constraint("DistanceX", 0, 1, 0, 2, 8.70206),
])
pad11 = body.newObject("PartDesign::Pad", "Pad010")
pad11.Profile = sketch16
pad11.Length = 3
pad11.Reversed = True

sketch17 = body.newObject("Sketcher::SketchObject", "Sketch016")
sketch17.AttachmentSupport = (doc.getObject("XY_Plane"), [""])
sketch17.MapMode = "FlatFace"
sketch17.AttachmentOffset = App.Placement(App.Vector(0, 0, 121), App.Rotation())
sketch17.addGeometry([
    Part.LineSegment(App.Vector(-8, 8.702, 0), App.Vector(-8, 6, 0)),
    Part.ArcOfCircle(Part.Circle(App.Vector(0, 0, 0), App.Vector(0, 0, 1), 10), math.radians(120), math.radians(143)),
    Part.LineSegment(App.Vector(-5, 8.66, 0), App.Vector(-5, 8.702, 0)),
    Part.LineSegment(App.Vector(-5, 8.702, 0), App.Vector(-8, 8.702, 0)),
], False)
sketch17.addConstraint([
    Sketcher.Constraint("Coincident", 0, 2, 1, 2),
    Sketcher.Constraint("Coincident", 1, 1, 2, 1),
    Sketcher.Constraint("Coincident", 2, 2, 3, 1),
    Sketcher.Constraint("Coincident", 3, 2, 0, 1),
    Sketcher.Constraint("Vertical", 0),
    Sketcher.Constraint("Vertical", 2),
    Sketcher.Constraint("Horizontal", 3),
    Sketcher.Constraint("Coincident", 1, 3, -1, 1),
    Sketcher.Constraint("Radius", 1, 10.0),
    Sketcher.Constraint("DistanceX", 3, 2, 3, 1, 3.0),
    Sketcher.Constraint("DistanceX", 0, 2, -1, 1, 8.0),
    Sketcher.Constraint("DistanceY", 0, 2, 0, 1, 2.70206),
])
pocket6 = body.newObject("PartDesign::Pocket", "Pocket005")
pocket6.Profile = sketch17
pocket6.Type = "ThroughAll"

doc.recompute()
